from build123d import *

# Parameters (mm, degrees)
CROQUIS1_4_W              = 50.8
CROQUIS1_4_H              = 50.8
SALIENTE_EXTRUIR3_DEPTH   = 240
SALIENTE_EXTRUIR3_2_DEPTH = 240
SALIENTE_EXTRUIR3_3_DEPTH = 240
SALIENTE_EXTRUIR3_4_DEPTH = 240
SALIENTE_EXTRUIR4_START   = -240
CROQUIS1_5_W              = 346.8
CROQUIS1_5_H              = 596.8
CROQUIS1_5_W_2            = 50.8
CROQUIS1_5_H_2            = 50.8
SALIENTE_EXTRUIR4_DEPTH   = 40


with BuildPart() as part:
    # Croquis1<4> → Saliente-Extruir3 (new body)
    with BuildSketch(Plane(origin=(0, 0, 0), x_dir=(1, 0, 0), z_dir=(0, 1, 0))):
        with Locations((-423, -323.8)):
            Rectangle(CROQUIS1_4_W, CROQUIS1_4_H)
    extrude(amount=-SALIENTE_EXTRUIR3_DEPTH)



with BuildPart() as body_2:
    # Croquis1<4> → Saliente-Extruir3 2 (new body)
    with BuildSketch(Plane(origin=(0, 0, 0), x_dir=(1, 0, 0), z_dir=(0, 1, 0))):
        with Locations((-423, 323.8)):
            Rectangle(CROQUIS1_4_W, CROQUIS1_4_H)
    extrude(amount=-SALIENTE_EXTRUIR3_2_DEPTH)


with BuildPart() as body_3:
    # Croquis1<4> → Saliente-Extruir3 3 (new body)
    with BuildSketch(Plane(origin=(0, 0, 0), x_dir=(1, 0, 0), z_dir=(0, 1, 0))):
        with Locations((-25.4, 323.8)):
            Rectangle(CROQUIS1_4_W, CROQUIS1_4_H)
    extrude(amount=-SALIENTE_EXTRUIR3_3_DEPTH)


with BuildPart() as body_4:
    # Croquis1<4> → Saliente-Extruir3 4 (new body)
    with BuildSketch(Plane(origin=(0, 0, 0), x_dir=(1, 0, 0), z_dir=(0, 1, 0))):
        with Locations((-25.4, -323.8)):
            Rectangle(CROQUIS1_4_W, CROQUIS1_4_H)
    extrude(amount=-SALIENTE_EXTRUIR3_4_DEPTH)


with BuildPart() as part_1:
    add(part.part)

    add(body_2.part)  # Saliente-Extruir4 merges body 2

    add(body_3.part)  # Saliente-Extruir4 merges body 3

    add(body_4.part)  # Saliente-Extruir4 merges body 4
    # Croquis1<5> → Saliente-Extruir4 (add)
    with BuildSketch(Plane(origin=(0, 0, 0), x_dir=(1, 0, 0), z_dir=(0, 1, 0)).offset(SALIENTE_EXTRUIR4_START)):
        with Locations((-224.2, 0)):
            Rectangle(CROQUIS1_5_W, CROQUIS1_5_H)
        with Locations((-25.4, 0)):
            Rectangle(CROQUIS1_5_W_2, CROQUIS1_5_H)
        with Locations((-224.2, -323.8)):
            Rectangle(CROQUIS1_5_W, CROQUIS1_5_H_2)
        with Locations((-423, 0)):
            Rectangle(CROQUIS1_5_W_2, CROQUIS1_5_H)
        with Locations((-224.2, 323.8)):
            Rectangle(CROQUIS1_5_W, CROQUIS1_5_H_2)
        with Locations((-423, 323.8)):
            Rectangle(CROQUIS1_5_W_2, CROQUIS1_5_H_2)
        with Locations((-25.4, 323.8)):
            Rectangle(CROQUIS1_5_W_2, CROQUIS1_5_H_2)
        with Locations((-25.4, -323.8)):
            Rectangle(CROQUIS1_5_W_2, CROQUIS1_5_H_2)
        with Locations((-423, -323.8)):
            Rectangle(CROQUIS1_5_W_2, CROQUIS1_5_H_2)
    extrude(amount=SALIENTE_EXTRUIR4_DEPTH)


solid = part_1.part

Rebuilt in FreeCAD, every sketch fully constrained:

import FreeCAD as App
import Part
import Sketcher

doc = App.newDocument("Part")
body = doc.addObject("PartDesign::Body", "Body")

# Sketch on XZ plane
sketch1 = body.newObject("Sketcher::SketchObject", "Sketch")
sketch1.AttachmentSupport = (doc.getObject("XZ_Plane"), [""])
sketch1.MapMode = "FlatFace"
sketch1.addGeometry([
    Part.LineSegment(App.Vector(-448, 298, 0), App.Vector(-448, 349, 0)),
    Part.LineSegment(App.Vector(-448, 349, 0), App.Vector(-398, 349, 0)),
    Part.LineSegment(App.Vector(-398, 349, 0), App.Vector(-398, 298, 0)),
    Part.LineSegment(App.Vector(-398, 298, 0), App.Vector(-448, 298, 0)),
], False)
sketch1.addConstraint([
    Sketcher.Constraint("Coincident", 0, 2, 1, 1),
    Sketcher.Constraint("Coincident", 1, 2, 2, 1),
    Sketcher.Constraint("Coincident", 2, 2, 3, 1),
    Sketcher.Constraint("Coincident", 3, 2, 0, 1),
    Sketcher.Constraint("Vertical", 0),
    Sketcher.Constraint("Horizontal", 1),
    Sketcher.Constraint("Vertical", 2),
    Sketcher.Constraint("Horizontal", 3),
    Sketcher.Constraint("Equal", 3, 0),
    Sketcher.Constraint("DistanceX", 1, 1, 1, 2, 50.8),
    Sketcher.Constraint("DistanceX", 0, 2, -1, 1, 448.4),
    Sketcher.Constraint("DistanceY", -1, 1, 0, 2, 349.2),
])
pad1 = body.newObject("PartDesign::Pad", "Pad")
pad1.Profile = sketch1
pad1.Length = 240
body2 = doc.addObject("PartDesign::Body", "Body001")

# Sketch on XZ plane
sketch2 = body2.newObject("Sketcher::SketchObject", "Sketch001")
sketch2.AttachmentSupport = (doc.getObject("XZ_Plane001"), [""])
sketch2.MapMode = "FlatFace"
sketch2.addGeometry([
    Part.LineSegment(App.Vector(-448, -349, 0), App.Vector(-448, -298, 0)),
    Part.LineSegment(App.Vector(-448, -298, 0), App.Vector(-398, -298, 0)),
    Part.LineSegment(App.Vector(-398, -298, 0), App.Vector(-398, -349, 0)),
    Part.LineSegment(App.Vector(-398, -349, 0), App.Vector(-448, -349, 0)),
], False)
sketch2.addConstraint([
    Sketcher.Constraint("Coincident", 0, 2, 1, 1),
    Sketcher.Constraint("Coincident", 1, 2, 2, 1),
    Sketcher.Constraint("Coincident", 2, 2, 3, 1),
    Sketcher.Constraint("Coincident", 3, 2, 0, 1),
    Sketcher.Constraint("Vertical", 0),
    Sketcher.Constraint("Horizontal", 1),
    Sketcher.Constraint("Vertical", 2),
    Sketcher.Constraint("Horizontal", 3),
    Sketcher.Constraint("Equal", 3, 0),
    Sketcher.Constraint("DistanceX", 1, 1, 1, 2, 50.8),
    Sketcher.Constraint("DistanceX", 0, 2, -1, 1, 448.4),
    Sketcher.Constraint("DistanceY", 0, 2, -1, 1, 298.4),
])
pad2 = body2.newObject("PartDesign::Pad", "Pad001")
pad2.Profile = sketch2
pad2.Length = 240
body3 = doc.addObject("PartDesign::Body", "Body002")

# Sketch on XZ plane
sketch3 = body3.newObject("Sketcher::SketchObject", "Sketch002")
sketch3.AttachmentSupport = (doc.getObject("XZ_Plane002"), [""])
sketch3.MapMode = "FlatFace"
sketch3.addGeometry([
    Part.LineSegment(App.Vector(-51, -349, 0), App.Vector(-51, -298, 0)),
    Part.LineSegment(App.Vector(-51, -298, 0), App.Vector(0, -298, 0)),
    Part.LineSegment(App.Vector(0, -298, 0), App.Vector(0, -349, 0)),
    Part.LineSegment(App.Vector(0, -349, 0), App.Vector(-51, -349, 0)),
], False)
sketch3.addConstraint([
    Sketcher.Constraint("Coincident", 0, 2, 1, 1),
    Sketcher.Constraint("Coincident", 1, 2, 2, 1),
    Sketcher.Constraint("Coincident", 2, 2, 3, 1),
    Sketcher.Constraint("Coincident", 3, 2, 0, 1),
    Sketcher.Constraint("Vertical", 0),
    Sketcher.Constraint("Horizontal", 1),
    Sketcher.Constraint("Vertical", 2),
    Sketcher.Constraint("Horizontal", 3),
    Sketcher.Constraint("PointOnObject", 1, 2, -2),
    Sketcher.Constraint("Equal", 3, 0),
    Sketcher.Constraint("DistanceX", 1, 1, 1, 2, 50.8),
    Sketcher.Constraint("DistanceY", 0, 2, -1, 1, 298.4),
])
pad3 = body3.newObject("PartDesign::Pad", "Pad002")
pad3.Profile = sketch3
pad3.Length = 240
body4 = doc.addObject("PartDesign::Body", "Body003")

# Sketch on XZ plane
sketch4 = body4.newObject("Sketcher::SketchObject", "Sketch003")
sketch4.AttachmentSupport = (doc.getObject("XZ_Plane003"), [""])
sketch4.MapMode = "FlatFace"
sketch4.addGeometry([
    Part.LineSegment(App.Vector(-51, 298, 0), App.Vector(-51, 349, 0)),
    Part.LineSegment(App.Vector(-51, 349, 0), App.Vector(0, 349, 0)),
    Part.LineSegment(App.Vector(0, 349, 0), App.Vector(0, 298, 0)),
    Part.LineSegment(App.Vector(0, 298, 0), App.Vector(-51, 298, 0)),
], False)
sketch4.addConstraint([
    Sketcher.Constraint("Coincident", 0, 2, 1, 1),
    Sketcher.Constraint("Coincident", 1, 2, 2, 1),
    Sketcher.Constraint("Coincident", 2, 2, 3, 1),
    Sketcher.Constraint("Coincident", 3, 2, 0, 1),
    Sketcher.Constraint("Vertical", 0),
    Sketcher.Constraint("Horizontal", 1),
    Sketcher.Constraint("Vertical", 2),
    Sketcher.Constraint("Horizontal", 3),
    Sketcher.Constraint("PointOnObject", 1, 2, -2),
    Sketcher.Constraint("Equal", 3, 0),
    Sketcher.Constraint("DistanceX", 1, 1, 1, 2, 50.8),
    Sketcher.Constraint("DistanceY", -1, 1, 0, 2, 349.2),
])
pad4 = body4.newObject("PartDesign::Pad", "Pad003")
pad4.Profile = sketch4
pad4.Length = 240
body.AllowCompound = True
doc.recompute()

boolean = body.newObject("PartDesign::Boolean", "Boolean")
boolean.Type = "Fuse"
boolean.addObjects([body2])
doc.recompute()

boolean2 = body.newObject("PartDesign::Boolean", "Boolean001")
boolean2.Type = "Fuse"
boolean2.addObjects([body3])
doc.recompute()

boolean3 = body.newObject("PartDesign::Boolean", "Boolean002")
boolean3.Type = "Fuse"
boolean3.addObjects([body4])

# Sketch on XZ plane
sketch5 = body.newObject("Sketcher::SketchObject", "Sketch004")
sketch5.AttachmentSupport = (doc.getObject("XZ_Plane"), [""])
sketch5.MapMode = "FlatFace"
sketch5.AttachmentOffset = App.Placement(App.Vector(0, 0, 240), App.Rotation())
sketch5.addGeometry([
    Part.LineSegment(App.Vector(0, 349, 0), App.Vector(0, -349, 0)),
    Part.LineSegment(App.Vector(0, -349, 0), App.Vector(-448, -349, 0)),
    Part.LineSegment(App.Vector(-448, -349, 0), App.Vector(-448, 349, 0)),
    Part.LineSegment(App.Vector(-448, 349, 0), App.Vector(0, 349, 0)),
], False)
sketch5.addConstraint([
    Sketcher.Constraint("Coincident", 0, 2, 1, 1),
    Sketcher.Constraint("Coincident", 1, 2, 2, 1),
    Sketcher.Constraint("Coincident", 2, 2, 3, 1),
    Sketcher.Constraint("Coincident", 3, 2, 0, 1),
    Sketcher.Constraint("Vertical", 0),
    Sketcher.Constraint("Horizontal", 1),
    Sketcher.Constraint("Vertical", 2),
    Sketcher.Constraint("Horizontal", 3),
    Sketcher.Constraint("Symmetric", 0, 2, 3, 2, -1, 1),
    Sketcher.Constraint("DistanceX", 1, 2, 1, 1, 448.4),
    Sketcher.Constraint("DistanceY", 0, 2, 0, 1, 698.4),
])
pad5 = body.newObject("PartDesign::Pad", "Pad004")
pad5.Profile = sketch5
pad5.Length = 40
pad5.Reversed = True

doc.recompute()
